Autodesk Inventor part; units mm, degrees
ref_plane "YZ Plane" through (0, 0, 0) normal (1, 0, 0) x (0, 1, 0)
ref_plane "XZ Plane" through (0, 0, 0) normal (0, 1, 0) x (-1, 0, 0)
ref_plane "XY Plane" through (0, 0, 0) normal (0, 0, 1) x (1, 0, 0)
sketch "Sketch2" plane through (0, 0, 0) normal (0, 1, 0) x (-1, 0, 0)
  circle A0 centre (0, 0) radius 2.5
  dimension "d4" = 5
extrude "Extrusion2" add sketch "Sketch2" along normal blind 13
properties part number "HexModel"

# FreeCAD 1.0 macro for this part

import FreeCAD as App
import Part
import Sketcher

doc = App.newDocument("Part")
body = doc.addObject("PartDesign::Body", "Body")

sketch1 = doc.addObject("Sketcher::SketchObject", "Sketch")
body.addObject(sketch1)
sketch1.AttachmentSupport = (doc.XZ_Plane, [""])
sketch1.MapMode = "FlatFace"
sketch1.addGeometry(Part.Circle(App.Vector(0, 0, 0), App.Vector(0, 0, 1), 2.5), False)
sketch1.addConstraint([
    Sketcher.Constraint("Coincident", 0, 3, -1, 1),
    Sketcher.Constraint("Diameter", 0, 5.0),
])
pad1 = doc.addObject("PartDesign::Pad", "Pad")
body.addObject(pad1)
pad1.Profile = sketch1
pad1.Length = 13
pad1.Reversed = True

doc.recompute()
